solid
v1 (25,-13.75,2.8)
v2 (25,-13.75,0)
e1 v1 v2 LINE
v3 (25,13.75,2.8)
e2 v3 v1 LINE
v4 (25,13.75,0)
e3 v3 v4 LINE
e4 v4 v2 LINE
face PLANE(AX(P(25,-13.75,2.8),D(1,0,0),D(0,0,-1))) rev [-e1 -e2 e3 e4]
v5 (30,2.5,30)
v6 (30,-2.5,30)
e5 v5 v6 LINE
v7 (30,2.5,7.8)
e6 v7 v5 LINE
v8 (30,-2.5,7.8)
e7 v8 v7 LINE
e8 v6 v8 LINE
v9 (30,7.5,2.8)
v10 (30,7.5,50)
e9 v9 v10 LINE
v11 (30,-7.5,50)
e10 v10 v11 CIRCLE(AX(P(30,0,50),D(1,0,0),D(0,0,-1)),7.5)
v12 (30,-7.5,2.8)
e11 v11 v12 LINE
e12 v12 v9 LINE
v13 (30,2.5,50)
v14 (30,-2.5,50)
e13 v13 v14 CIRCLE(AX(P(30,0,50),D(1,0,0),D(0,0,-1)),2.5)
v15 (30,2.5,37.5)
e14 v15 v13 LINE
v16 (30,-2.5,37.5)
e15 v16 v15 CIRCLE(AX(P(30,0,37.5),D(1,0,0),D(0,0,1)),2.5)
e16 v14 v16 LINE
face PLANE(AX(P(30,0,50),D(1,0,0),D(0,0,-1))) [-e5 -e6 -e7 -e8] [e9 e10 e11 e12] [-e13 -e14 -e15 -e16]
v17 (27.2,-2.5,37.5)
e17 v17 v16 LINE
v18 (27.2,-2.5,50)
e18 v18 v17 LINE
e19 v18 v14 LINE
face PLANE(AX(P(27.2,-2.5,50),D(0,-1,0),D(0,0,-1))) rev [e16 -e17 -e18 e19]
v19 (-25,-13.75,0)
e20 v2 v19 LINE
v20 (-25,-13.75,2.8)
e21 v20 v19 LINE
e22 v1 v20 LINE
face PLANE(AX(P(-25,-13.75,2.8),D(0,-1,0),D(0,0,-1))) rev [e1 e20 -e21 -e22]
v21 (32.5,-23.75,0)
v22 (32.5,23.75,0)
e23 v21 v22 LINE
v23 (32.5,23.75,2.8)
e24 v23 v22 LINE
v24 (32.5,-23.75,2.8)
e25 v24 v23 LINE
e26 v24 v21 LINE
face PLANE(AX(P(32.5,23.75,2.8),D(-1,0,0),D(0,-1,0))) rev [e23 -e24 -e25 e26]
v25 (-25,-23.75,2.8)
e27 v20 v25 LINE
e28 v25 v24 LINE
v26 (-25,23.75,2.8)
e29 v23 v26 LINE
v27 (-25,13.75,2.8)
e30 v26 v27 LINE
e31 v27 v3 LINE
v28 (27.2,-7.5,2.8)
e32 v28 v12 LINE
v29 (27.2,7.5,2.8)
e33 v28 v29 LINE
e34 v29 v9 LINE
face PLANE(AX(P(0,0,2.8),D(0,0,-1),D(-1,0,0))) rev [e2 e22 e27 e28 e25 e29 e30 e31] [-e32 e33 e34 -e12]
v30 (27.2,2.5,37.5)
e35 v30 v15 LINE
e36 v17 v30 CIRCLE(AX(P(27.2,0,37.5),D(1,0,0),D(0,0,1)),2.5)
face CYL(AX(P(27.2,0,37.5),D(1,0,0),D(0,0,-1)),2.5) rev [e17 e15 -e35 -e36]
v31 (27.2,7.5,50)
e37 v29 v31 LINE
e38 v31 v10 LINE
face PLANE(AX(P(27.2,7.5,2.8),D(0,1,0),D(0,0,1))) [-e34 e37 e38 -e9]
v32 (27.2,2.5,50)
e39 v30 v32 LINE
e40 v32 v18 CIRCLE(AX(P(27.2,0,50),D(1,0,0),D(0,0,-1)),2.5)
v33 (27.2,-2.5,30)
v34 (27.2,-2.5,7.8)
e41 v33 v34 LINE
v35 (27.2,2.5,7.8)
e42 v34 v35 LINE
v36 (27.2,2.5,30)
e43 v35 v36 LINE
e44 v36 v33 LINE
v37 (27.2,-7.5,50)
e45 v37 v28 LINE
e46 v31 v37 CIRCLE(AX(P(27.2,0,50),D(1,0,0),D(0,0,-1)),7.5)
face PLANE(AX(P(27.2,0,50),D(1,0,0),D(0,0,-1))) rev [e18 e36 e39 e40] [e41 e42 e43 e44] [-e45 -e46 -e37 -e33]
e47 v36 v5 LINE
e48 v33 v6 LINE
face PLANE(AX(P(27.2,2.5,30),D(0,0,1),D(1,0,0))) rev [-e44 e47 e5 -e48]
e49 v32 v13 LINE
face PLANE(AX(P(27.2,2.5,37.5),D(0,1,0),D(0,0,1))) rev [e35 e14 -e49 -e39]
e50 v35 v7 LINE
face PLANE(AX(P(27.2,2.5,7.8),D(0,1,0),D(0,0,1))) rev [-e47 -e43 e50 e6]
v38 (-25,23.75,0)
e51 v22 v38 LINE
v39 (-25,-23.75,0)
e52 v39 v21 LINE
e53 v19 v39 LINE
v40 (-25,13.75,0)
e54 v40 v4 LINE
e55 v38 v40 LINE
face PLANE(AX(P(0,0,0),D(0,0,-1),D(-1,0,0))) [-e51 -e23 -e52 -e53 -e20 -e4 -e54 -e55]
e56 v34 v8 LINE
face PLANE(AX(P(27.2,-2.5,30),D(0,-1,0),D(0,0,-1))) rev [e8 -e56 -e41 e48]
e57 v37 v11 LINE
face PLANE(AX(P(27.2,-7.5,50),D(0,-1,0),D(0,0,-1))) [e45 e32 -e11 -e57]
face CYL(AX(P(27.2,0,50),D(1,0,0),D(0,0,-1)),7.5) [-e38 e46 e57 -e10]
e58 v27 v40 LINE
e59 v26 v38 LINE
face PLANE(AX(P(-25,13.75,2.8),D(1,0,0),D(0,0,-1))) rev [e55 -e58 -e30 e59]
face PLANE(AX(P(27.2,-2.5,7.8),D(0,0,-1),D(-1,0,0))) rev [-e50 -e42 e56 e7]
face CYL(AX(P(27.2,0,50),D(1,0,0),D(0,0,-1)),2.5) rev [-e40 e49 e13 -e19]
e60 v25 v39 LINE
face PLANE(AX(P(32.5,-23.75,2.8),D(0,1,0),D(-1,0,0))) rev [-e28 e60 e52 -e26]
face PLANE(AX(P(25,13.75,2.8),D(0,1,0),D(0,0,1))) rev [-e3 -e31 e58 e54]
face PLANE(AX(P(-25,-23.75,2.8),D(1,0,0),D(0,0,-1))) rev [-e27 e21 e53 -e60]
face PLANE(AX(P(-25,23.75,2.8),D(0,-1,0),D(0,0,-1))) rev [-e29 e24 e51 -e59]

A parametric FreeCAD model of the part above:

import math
import FreeCAD as App
import Part
import Sketcher

V = App.Vector

doc = App.newDocument("Part")
params = doc.addObject("Spreadsheet::Sheet", "Params")
for row, (alias, value) in enumerate([
    ("sketch1_width", "50 mm"),
    ("sketch1_height", "10 mm"),
    ("sketch1_width2", "57.5 mm"),
    ("sketch1_height2", "47.5 mm"),
    ("pad1_length", "2.8 mm"),
    ("sketch2_radius", "7.5 mm"),
    ("sketch2_radius2", "2.5 mm"),
    ("sketch2_height", "47.2 mm"),
    ("sketch2_height2", "12.5 mm"),
    ("sketch2_height3", "22.2 mm"),
    ("pad2_length", "2.8 mm"),
], start=1):
    params.set(f"A{row}", alias)
    params.set(f"B{row}", "=" + value)
    params.setAlias(f"B{row}", alias)

body = doc.addObject("PartDesign::Body", "Body")

# Sketch on XY plane
sketch1 = body.newObject("Sketcher::SketchObject", "Sketch")
sketch1.AttachmentSupport = (doc.getObject("XY_Plane"), [""])
sketch1.MapMode = "FlatFace"
sketch1.addGeometry(Part.LineSegment(V(25, -14, 0), V(-25, -14, 0)), False)
sketch1.addGeometry(Part.LineSegment(V(-25, -14, 0), V(-25, -24, 0)), False)
sketch1.addGeometry(Part.LineSegment(V(-25, -24, 0), V(32, -24, 0)), False)
sketch1.addGeometry(Part.LineSegment(V(32, -24, 0), V(32, 24, 0)), False)
sketch1.addGeometry(Part.LineSegment(V(32, 24, 0), V(-25, 24, 0)), False)
sketch1.addGeometry(Part.LineSegment(V(-25, 24, 0), V(-25, 14, 0)), False)
sketch1.addGeometry(Part.LineSegment(V(-25, 14, 0), V(25, 14, 0)), False)
sketch1.addGeometry(Part.LineSegment(V(25, 14, 0), V(25, -14, 0)), False)
sketch1.addConstraint(Sketcher.Constraint("Coincident", 0, 2, 1, 1))
sketch1.addConstraint(Sketcher.Constraint("Coincident", 1, 2, 2, 1))
sketch1.addConstraint(Sketcher.Constraint("Coincident", 2, 2, 3, 1))
sketch1.addConstraint(Sketcher.Constraint("Coincident", 3, 2, 4, 1))
sketch1.addConstraint(Sketcher.Constraint("Coincident", 4, 2, 5, 1))
sketch1.addConstraint(Sketcher.Constraint("Coincident", 5, 2, 6, 1))
sketch1.addConstraint(Sketcher.Constraint("Coincident", 6, 2, 7, 1))
sketch1.addConstraint(Sketcher.Constraint("Coincident", 7, 2, 0, 1))
sketch1.addConstraint(Sketcher.Constraint("Horizontal", 0))
sketch1.addConstraint(Sketcher.Constraint("Vertical", 1))
sketch1.addConstraint(Sketcher.Constraint("Horizontal", 2))
sketch1.addConstraint(Sketcher.Constraint("Vertical", 3))
sketch1.addConstraint(Sketcher.Constraint("Horizontal", 4))
sketch1.addConstraint(Sketcher.Constraint("Vertical", 5))
sketch1.addConstraint(Sketcher.Constraint("Horizontal", 6))
sketch1.addConstraint(Sketcher.Constraint("Vertical", 7))
sketch1.addConstraint(Sketcher.Constraint("Symmetric", 0, 2, 6, 2, -1, 1))
sketch1.addConstraint(Sketcher.Constraint("Symmetric", 1, 2, 4, 2, -1))
sketch1.addConstraint(Sketcher.Constraint("DistanceX", 0, 2, 0, 1, 50.0))
sketch1.addConstraint(Sketcher.Constraint("DistanceY", 1, 2, 1, 1, 10.0))
sketch1.addConstraint(Sketcher.Constraint("DistanceX", 2, 1, 2, 2, 57.5))
sketch1.addConstraint(Sketcher.Constraint("DistanceY", 3, 1, 3, 2, 47.5))
sketch1.setExpression("Constraints[18]", "Params.sketch1_width")
sketch1.setExpression("Constraints[19]", "Params.sketch1_height")
sketch1.setExpression("Constraints[20]", "Params.sketch1_width2")
sketch1.setExpression("Constraints[21]", "Params.sketch1_height2")
pad1 = body.newObject("PartDesign::Pad", "Pad")
pad1.Profile = sketch1
pad1.setExpression("Length", "Params.pad1_length")

# Sketch on YZ plane
sketch2 = body.newObject("Sketcher::SketchObject", "Sketch001")
sketch2.AttachmentSupport = (doc.getObject("YZ_Plane"), [""])
sketch2.MapMode = "FlatFace"
sketch2.AttachmentOffset = App.Placement(V(0, 0, 30), App.Rotation())
sketch2.addGeometry(Part.LineSegment(V(-7.5, 2.8, 0), V(7.5, 2.8, 0)), False)
sketch2.addGeometry(Part.LineSegment(V(7.5, 2.8, 0), V(7.5, 50, 0)), False)
sketch2.addGeometry(Part.ArcOfCircle(Part.Circle(V(0, 50, 0), V(0, 0, 1), 7.5), math.radians(0), math.radians(180)), False)
sketch2.addGeometry(Part.LineSegment(V(-7.5, 50, 0), V(-7.5, 2.8, 0)), False)
sketch2.addGeometry(Part.LineSegment(V(-2.5, 37.5, 0), V(-2.5, 50, 0)), False)
sketch2.addGeometry(Part.ArcOfCircle(Part.Circle(V(0, 50, 0), V(0, 0, 1), 2.5), math.radians(0), math.radians(180)), False)
sketch2.addGeometry(Part.LineSegment(V(2.5, 50, 0), V(2.5, 37.5, 0)), False)
sketch2.addGeometry(Part.ArcOfCircle(Part.Circle(V(0, 37.5, 0), V(0, 0, 1), 2.5), math.radians(180), math.radians(360)), False)
sketch2.addGeometry(Part.LineSegment(V(-2.5, 7.8, 0), V(-2.5, 30, 0)), False)
sketch2.addGeometry(Part.LineSegment(V(-2.5, 30, 0), V(2.5, 30, 0)), False)
sketch2.addGeometry(Part.LineSegment(V(2.5, 30, 0), V(2.5, 7.8, 0)), False)
sketch2.addGeometry(Part.LineSegment(V(2.5, 7.8, 0), V(-2.5, 7.8, 0)), False)
sketch2.addConstraint(Sketcher.Constraint("Coincident", 0, 2, 1, 1))
sketch2.addConstraint(Sketcher.Constraint("Tangent", 1, 2, 2, 1))
sketch2.addConstraint(Sketcher.Constraint("Tangent", 2, 2, 3, 1))
sketch2.addConstraint(Sketcher.Constraint("Coincident", 3, 2, 0, 1))
sketch2.addConstraint(Sketcher.Constraint("Tangent", 4, 2, 5, 2))
sketch2.addConstraint(Sketcher.Constraint("Tangent", 5, 1, 6, 1))
sketch2.addConstraint(Sketcher.Constraint("Tangent", 6, 2, 7, 2))
sketch2.addConstraint(Sketcher.Constraint("Tangent", 7, 1, 4, 1))
sketch2.addConstraint(Sketcher.Constraint("Coincident", 8, 2, 9, 1))
sketch2.addConstraint(Sketcher.Constraint("Coincident", 9, 2, 10, 1))
sketch2.addConstraint(Sketcher.Constraint("Coincident", 10, 2, 11, 1))
sketch2.addConstraint(Sketcher.Constraint("Coincident", 11, 2, 8, 1))
sketch2.addConstraint(Sketcher.Constraint("Horizontal", 0))
sketch2.addConstraint(Sketcher.Constraint("Vertical", 1))
sketch2.addConstraint(Sketcher.Constraint("Vertical", 3))
sketch2.addConstraint(Sketcher.Constraint("Vertical", 4))
sketch2.addConstraint(Sketcher.Constraint("Vertical", 6))
sketch2.addConstraint(Sketcher.Constraint("Vertical", 8))
sketch2.addConstraint(Sketcher.Constraint("Horizontal", 9))
sketch2.addConstraint(Sketcher.Constraint("Vertical", 10))
sketch2.addConstraint(Sketcher.Constraint("Horizontal", 11))
sketch2.addConstraint(Sketcher.Constraint("Coincident", 5, 3, 2, 3))
sketch2.addConstraint(Sketcher.Constraint("PointOnObject", 2, 3, -2))
sketch2.addConstraint(Sketcher.Constraint("Vertical", 7, 1, 8, 2))
sketch2.addConstraint(Sketcher.Constraint("Vertical", 6, 2, 9, 2))
sketch2.addConstraint(Sketcher.Constraint("Radius", 2, 7.5))
sketch2.addConstraint(Sketcher.Constraint("Radius", 5, 2.5))
sketch2.addConstraint(Sketcher.Constraint("DistanceY", 1, 1, 1, 2, 47.2))
sketch2.addConstraint(Sketcher.Constraint("DistanceY", 4, 1, 4, 2, 12.5))
sketch2.addConstraint(Sketcher.Constraint("DistanceY", 8, 1, 8, 2, 22.2))
sketch2.addConstraint(Sketcher.Constraint("DistanceY", -1, 1, 2, 3, 50.0))
sketch2.addConstraint(Sketcher.Constraint("DistanceY", -1, 1, 8, 2, 30.0))
sketch2.setExpression("Constraints[25]", "Params.sketch2_radius")
sketch2.setExpression("Constraints[26]", "Params.sketch2_radius2")
sketch2.setExpression("Constraints[27]", "Params.sketch2_height")
sketch2.setExpression("Constraints[28]", "Params.sketch2_height2")
sketch2.setExpression("Constraints[29]", "Params.sketch2_height3")
pad2 = body.newObject("PartDesign::Pad", "Pad001")
pad2.Profile = sketch2
pad2.setExpression("Length", "Params.pad2_length")
pad2.Reversed = True

doc.recompute()
